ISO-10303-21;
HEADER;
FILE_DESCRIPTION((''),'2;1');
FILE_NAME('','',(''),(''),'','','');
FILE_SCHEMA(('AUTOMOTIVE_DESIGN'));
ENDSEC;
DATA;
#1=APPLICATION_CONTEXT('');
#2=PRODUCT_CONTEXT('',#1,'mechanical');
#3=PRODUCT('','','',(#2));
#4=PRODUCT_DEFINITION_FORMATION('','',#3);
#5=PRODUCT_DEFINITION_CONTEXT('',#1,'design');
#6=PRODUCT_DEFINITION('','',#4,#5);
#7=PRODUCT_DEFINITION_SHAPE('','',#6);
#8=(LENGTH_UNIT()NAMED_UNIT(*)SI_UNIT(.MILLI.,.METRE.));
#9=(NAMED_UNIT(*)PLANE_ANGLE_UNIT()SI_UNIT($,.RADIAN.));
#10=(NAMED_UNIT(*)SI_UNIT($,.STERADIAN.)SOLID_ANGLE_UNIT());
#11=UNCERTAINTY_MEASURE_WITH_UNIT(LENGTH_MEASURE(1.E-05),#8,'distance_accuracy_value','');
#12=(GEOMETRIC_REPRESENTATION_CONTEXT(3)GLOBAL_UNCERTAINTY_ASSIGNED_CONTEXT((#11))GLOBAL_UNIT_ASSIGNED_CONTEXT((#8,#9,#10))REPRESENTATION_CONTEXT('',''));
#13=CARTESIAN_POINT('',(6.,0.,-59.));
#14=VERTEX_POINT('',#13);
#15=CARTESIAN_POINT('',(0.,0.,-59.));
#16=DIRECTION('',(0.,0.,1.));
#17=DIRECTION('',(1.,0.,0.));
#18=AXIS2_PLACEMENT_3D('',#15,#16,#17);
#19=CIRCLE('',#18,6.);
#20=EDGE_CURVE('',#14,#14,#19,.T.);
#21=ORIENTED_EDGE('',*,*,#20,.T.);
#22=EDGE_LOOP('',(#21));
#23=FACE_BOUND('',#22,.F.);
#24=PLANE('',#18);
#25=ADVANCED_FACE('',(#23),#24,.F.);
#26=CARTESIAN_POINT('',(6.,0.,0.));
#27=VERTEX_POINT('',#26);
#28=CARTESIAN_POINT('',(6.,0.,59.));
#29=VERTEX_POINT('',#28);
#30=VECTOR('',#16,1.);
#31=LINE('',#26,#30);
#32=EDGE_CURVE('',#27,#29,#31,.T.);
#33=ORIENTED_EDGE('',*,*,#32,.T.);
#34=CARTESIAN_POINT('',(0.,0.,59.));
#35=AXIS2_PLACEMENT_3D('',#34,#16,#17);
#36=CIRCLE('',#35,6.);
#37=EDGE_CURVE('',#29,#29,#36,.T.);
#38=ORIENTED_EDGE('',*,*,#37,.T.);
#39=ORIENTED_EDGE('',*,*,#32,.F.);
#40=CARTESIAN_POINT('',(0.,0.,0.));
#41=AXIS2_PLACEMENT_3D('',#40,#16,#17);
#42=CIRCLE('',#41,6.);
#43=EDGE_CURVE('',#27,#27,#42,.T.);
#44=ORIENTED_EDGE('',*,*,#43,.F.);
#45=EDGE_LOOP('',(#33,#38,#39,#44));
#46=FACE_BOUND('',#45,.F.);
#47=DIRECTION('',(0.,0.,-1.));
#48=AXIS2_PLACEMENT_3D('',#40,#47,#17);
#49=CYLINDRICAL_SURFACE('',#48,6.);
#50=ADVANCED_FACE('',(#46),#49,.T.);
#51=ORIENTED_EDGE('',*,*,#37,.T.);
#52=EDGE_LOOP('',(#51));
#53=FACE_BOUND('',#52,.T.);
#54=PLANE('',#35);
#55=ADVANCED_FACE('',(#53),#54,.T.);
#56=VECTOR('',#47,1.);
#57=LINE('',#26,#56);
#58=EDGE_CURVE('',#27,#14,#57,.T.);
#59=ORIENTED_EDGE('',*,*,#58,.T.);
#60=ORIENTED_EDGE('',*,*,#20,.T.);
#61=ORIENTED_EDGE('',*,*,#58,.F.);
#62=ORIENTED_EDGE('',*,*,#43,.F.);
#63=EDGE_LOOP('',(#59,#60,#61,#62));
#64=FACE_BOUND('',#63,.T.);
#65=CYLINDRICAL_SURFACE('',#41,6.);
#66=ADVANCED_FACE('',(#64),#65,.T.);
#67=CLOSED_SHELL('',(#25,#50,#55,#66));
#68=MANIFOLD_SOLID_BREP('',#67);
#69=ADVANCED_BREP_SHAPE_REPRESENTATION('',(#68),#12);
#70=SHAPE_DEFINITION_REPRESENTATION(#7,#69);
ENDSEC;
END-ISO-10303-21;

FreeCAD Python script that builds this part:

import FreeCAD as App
import Part
import Sketcher

doc = App.newDocument("Part")
body = doc.addObject("PartDesign::Body", "Body")

# Sketch on XY plane
sketch1 = doc.addObject("Sketcher::SketchObject", "Sketch")
body.addObject(sketch1)
sketch1.AttachmentSupport = (doc.XY_Plane, [""])
sketch1.MapMode = "FlatFace"
sketch1.addGeometry(Part.Circle(App.Vector(0, 0, 0), App.Vector(0, 0, 1), 6), False)
sketch1.addConstraint([
    Sketcher.Constraint("Coincident", 0, 3, -1, 1),
    Sketcher.Constraint("Diameter", 0, 12.0),
])
pad1 = doc.addObject("PartDesign::Pad", "Pad")
body.addObject(pad1)
pad1.Profile = sketch1
pad1.Length = 118
pad1.Midplane = True

doc.recompute()
